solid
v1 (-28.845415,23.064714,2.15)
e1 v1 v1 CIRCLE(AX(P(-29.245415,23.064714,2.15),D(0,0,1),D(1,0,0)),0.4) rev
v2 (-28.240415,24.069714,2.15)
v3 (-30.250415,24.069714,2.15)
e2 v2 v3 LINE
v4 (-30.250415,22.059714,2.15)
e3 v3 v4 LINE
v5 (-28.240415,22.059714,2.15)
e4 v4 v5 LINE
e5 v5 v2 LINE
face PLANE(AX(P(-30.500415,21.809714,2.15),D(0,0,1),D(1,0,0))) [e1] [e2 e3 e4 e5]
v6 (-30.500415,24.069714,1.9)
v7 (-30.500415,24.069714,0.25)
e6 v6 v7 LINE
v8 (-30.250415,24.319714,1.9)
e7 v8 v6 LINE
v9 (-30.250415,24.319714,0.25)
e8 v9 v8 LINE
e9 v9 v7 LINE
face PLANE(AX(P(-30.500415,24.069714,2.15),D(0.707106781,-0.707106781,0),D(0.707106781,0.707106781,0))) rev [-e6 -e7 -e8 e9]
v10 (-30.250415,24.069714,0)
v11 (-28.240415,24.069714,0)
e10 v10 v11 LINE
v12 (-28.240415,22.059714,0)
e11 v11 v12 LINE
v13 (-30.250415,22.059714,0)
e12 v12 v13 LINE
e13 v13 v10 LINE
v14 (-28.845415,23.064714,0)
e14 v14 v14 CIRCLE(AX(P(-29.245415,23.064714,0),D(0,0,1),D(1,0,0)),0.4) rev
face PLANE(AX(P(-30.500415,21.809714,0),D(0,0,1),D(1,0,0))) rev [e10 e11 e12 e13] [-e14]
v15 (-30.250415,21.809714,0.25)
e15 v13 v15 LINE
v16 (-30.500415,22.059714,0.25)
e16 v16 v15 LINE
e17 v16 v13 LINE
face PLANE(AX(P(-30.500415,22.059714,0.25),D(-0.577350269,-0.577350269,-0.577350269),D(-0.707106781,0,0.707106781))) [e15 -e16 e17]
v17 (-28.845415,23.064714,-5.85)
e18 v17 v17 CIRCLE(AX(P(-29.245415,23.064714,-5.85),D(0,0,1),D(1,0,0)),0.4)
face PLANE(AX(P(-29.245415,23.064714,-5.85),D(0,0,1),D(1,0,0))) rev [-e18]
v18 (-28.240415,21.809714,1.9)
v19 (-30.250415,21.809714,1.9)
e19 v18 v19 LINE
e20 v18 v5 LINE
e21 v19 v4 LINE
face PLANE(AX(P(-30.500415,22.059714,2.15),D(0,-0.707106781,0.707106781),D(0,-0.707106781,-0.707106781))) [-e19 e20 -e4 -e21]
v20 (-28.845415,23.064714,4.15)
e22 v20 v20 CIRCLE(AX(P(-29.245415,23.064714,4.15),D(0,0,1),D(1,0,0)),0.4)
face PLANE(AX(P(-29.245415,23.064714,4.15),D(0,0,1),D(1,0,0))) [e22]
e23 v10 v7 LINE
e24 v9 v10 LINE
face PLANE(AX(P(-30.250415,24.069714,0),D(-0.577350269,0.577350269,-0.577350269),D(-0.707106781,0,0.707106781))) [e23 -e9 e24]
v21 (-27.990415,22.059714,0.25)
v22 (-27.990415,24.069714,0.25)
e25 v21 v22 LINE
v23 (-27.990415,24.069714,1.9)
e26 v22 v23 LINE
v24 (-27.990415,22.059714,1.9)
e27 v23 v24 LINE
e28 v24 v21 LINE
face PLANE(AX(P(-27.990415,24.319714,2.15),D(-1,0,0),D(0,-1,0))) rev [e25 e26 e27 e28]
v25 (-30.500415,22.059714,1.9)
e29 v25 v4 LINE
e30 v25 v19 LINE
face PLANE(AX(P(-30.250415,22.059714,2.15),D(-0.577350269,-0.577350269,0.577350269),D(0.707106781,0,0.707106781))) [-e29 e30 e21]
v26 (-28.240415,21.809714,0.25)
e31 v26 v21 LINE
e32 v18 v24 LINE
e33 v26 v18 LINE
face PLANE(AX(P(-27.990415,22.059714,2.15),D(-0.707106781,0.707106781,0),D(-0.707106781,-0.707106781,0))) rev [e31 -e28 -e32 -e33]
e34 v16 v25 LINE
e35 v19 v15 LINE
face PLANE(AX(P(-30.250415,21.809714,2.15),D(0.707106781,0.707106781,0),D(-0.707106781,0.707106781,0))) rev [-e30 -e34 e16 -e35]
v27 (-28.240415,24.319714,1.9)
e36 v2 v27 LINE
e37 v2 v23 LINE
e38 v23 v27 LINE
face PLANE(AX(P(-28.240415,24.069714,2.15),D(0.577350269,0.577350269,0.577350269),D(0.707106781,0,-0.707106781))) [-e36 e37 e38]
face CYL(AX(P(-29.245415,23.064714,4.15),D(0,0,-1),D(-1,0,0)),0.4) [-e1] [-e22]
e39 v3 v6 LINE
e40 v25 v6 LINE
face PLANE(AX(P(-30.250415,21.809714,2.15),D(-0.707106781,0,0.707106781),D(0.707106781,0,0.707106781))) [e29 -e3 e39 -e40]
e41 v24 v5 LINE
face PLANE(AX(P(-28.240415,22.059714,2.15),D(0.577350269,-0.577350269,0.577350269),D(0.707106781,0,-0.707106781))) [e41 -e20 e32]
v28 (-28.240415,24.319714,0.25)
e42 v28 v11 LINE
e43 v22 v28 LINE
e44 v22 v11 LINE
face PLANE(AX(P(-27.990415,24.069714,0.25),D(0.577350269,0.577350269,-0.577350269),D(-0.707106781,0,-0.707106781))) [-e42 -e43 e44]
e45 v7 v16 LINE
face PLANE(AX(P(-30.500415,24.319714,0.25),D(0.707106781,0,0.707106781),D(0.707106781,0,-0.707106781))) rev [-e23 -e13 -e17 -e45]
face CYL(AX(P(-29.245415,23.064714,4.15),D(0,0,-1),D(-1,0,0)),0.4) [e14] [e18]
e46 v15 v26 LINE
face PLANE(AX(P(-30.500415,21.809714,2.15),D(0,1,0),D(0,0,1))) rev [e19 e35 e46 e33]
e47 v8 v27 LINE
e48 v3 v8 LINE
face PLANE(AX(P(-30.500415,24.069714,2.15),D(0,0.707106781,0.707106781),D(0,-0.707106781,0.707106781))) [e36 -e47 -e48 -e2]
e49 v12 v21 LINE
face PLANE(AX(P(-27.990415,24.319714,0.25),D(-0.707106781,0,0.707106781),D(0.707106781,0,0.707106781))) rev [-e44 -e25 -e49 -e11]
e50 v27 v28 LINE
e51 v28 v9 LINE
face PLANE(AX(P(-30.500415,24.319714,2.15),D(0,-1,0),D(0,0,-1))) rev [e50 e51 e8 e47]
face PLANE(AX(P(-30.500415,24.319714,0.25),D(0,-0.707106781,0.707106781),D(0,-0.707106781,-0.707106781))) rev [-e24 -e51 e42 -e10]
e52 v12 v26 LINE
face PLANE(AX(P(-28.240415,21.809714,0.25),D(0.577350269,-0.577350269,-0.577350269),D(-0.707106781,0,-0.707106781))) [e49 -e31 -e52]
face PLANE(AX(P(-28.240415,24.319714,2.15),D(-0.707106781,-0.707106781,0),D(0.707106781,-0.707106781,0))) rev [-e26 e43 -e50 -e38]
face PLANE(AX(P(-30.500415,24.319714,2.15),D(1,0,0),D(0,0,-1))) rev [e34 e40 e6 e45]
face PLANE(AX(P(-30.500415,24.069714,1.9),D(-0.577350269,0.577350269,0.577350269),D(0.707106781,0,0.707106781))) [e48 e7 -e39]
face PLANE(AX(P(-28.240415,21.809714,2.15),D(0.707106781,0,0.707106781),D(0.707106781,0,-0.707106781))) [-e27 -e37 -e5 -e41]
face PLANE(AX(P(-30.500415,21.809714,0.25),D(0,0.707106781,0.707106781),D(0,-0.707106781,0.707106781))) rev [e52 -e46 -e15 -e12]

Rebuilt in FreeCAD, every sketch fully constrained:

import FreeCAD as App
import Part
import Sketcher

V = App.Vector


def edges_at(feature, points):
    """Names of the edges that pass closest to the given points."""
    edges = feature.Shape.Edges
    near = lambda p: min(range(len(edges)), key=lambda i: edges[i].distToShape(Part.Vertex(*p))[0])
    return sorted({f"Edge{near(p) + 1}" for p in points})


def add_polygon(sketch, points):
    """Adds a closed chain of lines whose ends are joined by coincident constraints."""
    first, n = sketch.GeometryCount, len(points)
    for a, b in zip(points, points[1:] + points[:1]):
        sketch.addGeometry(Part.LineSegment(App.Vector(*a, 0), App.Vector(*b, 0)), False)
    for i in range(n):
        sketch.addConstraint(Sketcher.Constraint("Coincident", first + i, 2, first + (i + 1) % n, 1))

doc = App.newDocument("Part")
body = doc.addObject("PartDesign::Body", "Body")

# Sketch on XY plane
sketch1 = body.newObject("Sketcher::SketchObject", "Sketch")
sketch1.AttachmentSupport = (doc.getObject("XY_Plane"), [""])
sketch1.MapMode = "FlatFace"
add_polygon(sketch1, [(-30.5, 24.3), (-30.5, 21.8), (-28, 21.8), (-28, 24.3)])  # lines 0-3
sketch1.addConstraint(Sketcher.Constraint("Vertical", 0))
sketch1.addConstraint(Sketcher.Constraint("Horizontal", 1))
sketch1.addConstraint(Sketcher.Constraint("Vertical", 2))
sketch1.addConstraint(Sketcher.Constraint("Horizontal", 3))
sketch1.addConstraint(Sketcher.Constraint("Equal", 3, 0))
sketch1.addConstraint(Sketcher.Constraint("DistanceX", 1, 1, 1, 2, 2.51))
sketch1.addConstraint(Sketcher.Constraint("DistanceX", 0, 2, -1, 1, 30.500415))
sketch1.addConstraint(Sketcher.Constraint("DistanceY", -1, 1, 0, 2, 21.809714))
pad1 = body.newObject("PartDesign::Pad", "Pad")
pad1.Profile = sketch1
pad1.Length = 2.15

# Sketch on XY plane
sketch2 = body.newObject("Sketcher::SketchObject", "Sketch001")
sketch2.AttachmentSupport = (doc.getObject("XY_Plane"), [""])
sketch2.MapMode = "FlatFace"
sketch2.AttachmentOffset = App.Placement(V(0, 0, 2.15), App.Rotation())
sketch2.addGeometry(Part.Circle(V(-29.25, 23.06, 0), V(0, 0, 1), 0.4), False)
sketch2.addConstraint(Sketcher.Constraint("Diameter", 0, 0.8))
sketch2.addConstraint(Sketcher.Constraint("DistanceX", 0, 3, -1, 1, 29.245415))
sketch2.addConstraint(Sketcher.Constraint("DistanceY", -1, 1, 0, 3, 23.064714))
pad2 = body.newObject("PartDesign::Pad", "Pad001")
pad2.Profile = sketch2
pad2.Type = "TwoLengths"
pad2.Length = 2
pad2.Length2 = 8
doc.recompute()

chamfer = body.newObject("PartDesign::Chamfer", "Chamfer")
chamfer.Base = (pad2, edges_at(pad2, [
    (-27.99, 23.065, 2.15),
    (-29.245, 24.32, 2.15),
    (-30.5, 23.065, 2.15),
    (-29.245, 24.32, 0),
    (-27.99, 23.065, 0),
    (-29.245, 21.81, 0),
    (-30.5, 23.065, 0),
    (-29.245, 21.81, 2.15),
    (-30.5, 24.32, 1.075),
    (-27.99, 24.32, 1.075),
    (-27.99, 21.81, 1.075),
    (-30.5, 21.81, 1.075),
]))
chamfer.Size = 0.25

doc.recompute()
